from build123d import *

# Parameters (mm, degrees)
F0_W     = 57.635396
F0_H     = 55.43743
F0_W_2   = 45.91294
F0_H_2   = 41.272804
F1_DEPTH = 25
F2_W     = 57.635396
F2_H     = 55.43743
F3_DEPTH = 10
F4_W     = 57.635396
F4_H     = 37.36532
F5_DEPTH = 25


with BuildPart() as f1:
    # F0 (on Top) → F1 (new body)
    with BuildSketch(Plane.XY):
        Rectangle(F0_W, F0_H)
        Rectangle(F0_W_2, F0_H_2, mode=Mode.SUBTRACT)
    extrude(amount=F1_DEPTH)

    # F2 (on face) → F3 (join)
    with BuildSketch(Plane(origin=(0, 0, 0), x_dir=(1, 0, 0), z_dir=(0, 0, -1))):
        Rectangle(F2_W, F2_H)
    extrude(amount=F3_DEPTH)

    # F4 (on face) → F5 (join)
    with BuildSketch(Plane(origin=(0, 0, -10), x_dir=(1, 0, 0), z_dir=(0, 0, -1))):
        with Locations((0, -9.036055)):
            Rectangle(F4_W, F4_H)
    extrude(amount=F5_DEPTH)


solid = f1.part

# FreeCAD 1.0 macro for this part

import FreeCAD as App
import Part
import Sketcher


def add_polygon(sketch, points):
    """Adds a closed chain of lines whose ends are joined by coincident constraints."""
    first, n = sketch.GeometryCount, len(points)
    for a, b in zip(points, points[1:] + points[:1]):
        sketch.addGeometry(Part.LineSegment(App.Vector(*a, 0), App.Vector(*b, 0)), False)
    for i in range(n):
        sketch.addConstraint(Sketcher.Constraint("Coincident", first + i, 2, first + (i + 1) % n, 1))

doc = App.newDocument("Part")
body = doc.addObject("PartDesign::Body", "Body")

sketch1 = body.newObject("Sketcher::SketchObject", "Sketch")
sketch1.AttachmentSupport = (doc.getObject("XY_Plane"), [""])
sketch1.MapMode = "FlatFace"
add_polygon(sketch1, [(-29, 28), (-29, -28), (29, -28), (29, 28)])
add_polygon(sketch1, [(23, -21), (-23, -21), (-23, 21), (23, 21)])
sketch1.addConstraint(Sketcher.Constraint("Vertical", 0))
sketch1.addConstraint(Sketcher.Constraint("Horizontal", 1))
sketch1.addConstraint(Sketcher.Constraint("Vertical", 2))
sketch1.addConstraint(Sketcher.Constraint("Horizontal", 3))
sketch1.addConstraint(Sketcher.Constraint("Horizontal", 4))
sketch1.addConstraint(Sketcher.Constraint("Vertical", 5))
sketch1.addConstraint(Sketcher.Constraint("Horizontal", 6))
sketch1.addConstraint(Sketcher.Constraint("Vertical", 7))
sketch1.addConstraint(Sketcher.Constraint("Symmetric", 0, 2, 2, 2, -1, 1))
sketch1.addConstraint(Sketcher.Constraint("Symmetric", 4, 2, 6, 2, -1, 1))
sketch1.addConstraint(Sketcher.Constraint("DistanceX", 4, 2, 4, 1, 45.91294))
sketch1.addConstraint(Sketcher.Constraint("DistanceY", 0, 2, 0, 1, 55.43743))
sketch1.addConstraint(Sketcher.Constraint("DistanceX", 0, 2, -1, 1, 28.817698))
sketch1.addConstraint(Sketcher.Constraint("DistanceY", 5, 1, 5, 2, 41.272804))
pad1 = body.newObject("PartDesign::Pad", "Pad")
pad1.Profile = sketch1
pad1.Length = 25

sketch2 = body.newObject("Sketcher::SketchObject", "Sketch001")
sketch2.AttachmentSupport = (doc.getObject("XY_Plane"), [""])
sketch2.MapMode = "FlatFace"
add_polygon(sketch2, [(-29, -28), (-29, 28), (29, 28), (29, -28)])
sketch2.addConstraint(Sketcher.Constraint("Vertical", 0))
sketch2.addConstraint(Sketcher.Constraint("Horizontal", 1))
sketch2.addConstraint(Sketcher.Constraint("Vertical", 2))
sketch2.addConstraint(Sketcher.Constraint("Horizontal", 3))
sketch2.addConstraint(Sketcher.Constraint("Symmetric", 0, 2, 2, 2, -1, 1))
sketch2.addConstraint(Sketcher.Constraint("DistanceY", 0, 1, 0, 2, 55.43743))
sketch2.addConstraint(Sketcher.Constraint("DistanceX", 0, 2, -1, 1, 28.817698))
pad2 = body.newObject("PartDesign::Pad", "Pad001")
pad2.Profile = sketch2
pad2.Length = 10
pad2.Reversed = True

sketch3 = body.newObject("Sketcher::SketchObject", "Sketch002")
sketch3.AttachmentSupport = (doc.getObject("XY_Plane"), [""])
sketch3.MapMode = "FlatFace"
sketch3.AttachmentOffset = App.Placement(App.Vector(0, 0, -10), App.Rotation())
add_polygon(sketch3, [(-29, -10), (-29, 28), (29, 28), (29, -10)])
sketch3.addConstraint(Sketcher.Constraint("Vertical", 0))
sketch3.addConstraint(Sketcher.Constraint("Horizontal", 1))
sketch3.addConstraint(Sketcher.Constraint("Vertical", 2))
sketch3.addConstraint(Sketcher.Constraint("Horizontal", 3))
sketch3.addConstraint(Sketcher.Constraint("DistanceY", 0, 1, 0, 2, 37.36532))
sketch3.addConstraint(Sketcher.Constraint("DistanceX", 0, 2, -1, 1, 28.817698))
sketch3.addConstraint(Sketcher.Constraint("DistanceX", -1, 1, 1, 2, 28.817698))
sketch3.addConstraint(Sketcher.Constraint("DistanceY", -1, 1, 0, 2, 27.718715))
pad3 = body.newObject("PartDesign::Pad", "Pad002")
pad3.Profile = sketch3
pad3.Length = 25
pad3.Reversed = True

doc.recompute()
